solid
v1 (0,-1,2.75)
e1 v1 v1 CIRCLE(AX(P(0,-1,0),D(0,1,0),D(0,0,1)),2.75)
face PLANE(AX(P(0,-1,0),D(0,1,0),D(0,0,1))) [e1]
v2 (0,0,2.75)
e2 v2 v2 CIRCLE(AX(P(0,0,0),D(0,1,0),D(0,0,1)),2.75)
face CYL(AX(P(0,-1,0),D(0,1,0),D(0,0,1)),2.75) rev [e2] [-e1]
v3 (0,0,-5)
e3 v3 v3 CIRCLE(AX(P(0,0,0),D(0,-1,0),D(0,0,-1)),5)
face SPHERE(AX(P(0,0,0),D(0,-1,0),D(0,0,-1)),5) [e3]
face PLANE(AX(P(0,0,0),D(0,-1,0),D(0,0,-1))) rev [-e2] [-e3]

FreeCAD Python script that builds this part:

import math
import FreeCAD as App
import Part
import Sketcher

V = App.Vector

doc = App.newDocument("Part")
body = doc.addObject("PartDesign::Body", "Body")

# Sketch on XZ plane
sketch1 = body.newObject("Sketcher::SketchObject", "Sketch")
sketch1.AttachmentSupport = (doc.getObject("XZ_Plane"), [""])
sketch1.MapMode = "FlatFace"
sketch1.addGeometry([
    Part.LineSegment(V(-5, 0, 0), V(5, 0, 0)),
    Part.ArcOfCircle(Part.Circle(V(0, 0, 0), V(0, 0, 1), 5), math.radians(180), math.radians(360)),
], False)
sketch1.addConstraint([
    Sketcher.Constraint("Coincident", 0, 1, 1, 1),
    Sketcher.Constraint("Coincident", 1, 2, 0, 2),
    Sketcher.Constraint("Horizontal", 0),
    Sketcher.Constraint("Coincident", 1, 3, -1, 1),
    Sketcher.Constraint("PointOnObject", 0, 1, -1),
    Sketcher.Constraint("Radius", 1, 5.0),
])
revolution = body.newObject("PartDesign::Revolution", "Revolution")
revolution.Profile = sketch1
revolution.ReferenceAxis = (sketch1, ["H_Axis"])
revolution.Angle = 180
revolution.Reversed = True

# Sketch on XZ plane
sketch2 = body.newObject("Sketcher::SketchObject", "Sketch001")
sketch2.AttachmentSupport = (doc.getObject("XZ_Plane"), [""])
sketch2.MapMode = "FlatFace"
sketch2.addGeometry(Part.Circle(V(0, 0, 0), V(0, 0, 1), 2.8), False)
sketch2.addConstraint([
    Sketcher.Constraint("Coincident", 0, 3, -1, 1),
    Sketcher.Constraint("Diameter", 0, 5.5),
])
pocket1 = body.newObject("PartDesign::Pocket", "Pocket")
pocket1.Profile = sketch2
pocket1.Length = 1
pocket1.Reversed = True

doc.recompute()
